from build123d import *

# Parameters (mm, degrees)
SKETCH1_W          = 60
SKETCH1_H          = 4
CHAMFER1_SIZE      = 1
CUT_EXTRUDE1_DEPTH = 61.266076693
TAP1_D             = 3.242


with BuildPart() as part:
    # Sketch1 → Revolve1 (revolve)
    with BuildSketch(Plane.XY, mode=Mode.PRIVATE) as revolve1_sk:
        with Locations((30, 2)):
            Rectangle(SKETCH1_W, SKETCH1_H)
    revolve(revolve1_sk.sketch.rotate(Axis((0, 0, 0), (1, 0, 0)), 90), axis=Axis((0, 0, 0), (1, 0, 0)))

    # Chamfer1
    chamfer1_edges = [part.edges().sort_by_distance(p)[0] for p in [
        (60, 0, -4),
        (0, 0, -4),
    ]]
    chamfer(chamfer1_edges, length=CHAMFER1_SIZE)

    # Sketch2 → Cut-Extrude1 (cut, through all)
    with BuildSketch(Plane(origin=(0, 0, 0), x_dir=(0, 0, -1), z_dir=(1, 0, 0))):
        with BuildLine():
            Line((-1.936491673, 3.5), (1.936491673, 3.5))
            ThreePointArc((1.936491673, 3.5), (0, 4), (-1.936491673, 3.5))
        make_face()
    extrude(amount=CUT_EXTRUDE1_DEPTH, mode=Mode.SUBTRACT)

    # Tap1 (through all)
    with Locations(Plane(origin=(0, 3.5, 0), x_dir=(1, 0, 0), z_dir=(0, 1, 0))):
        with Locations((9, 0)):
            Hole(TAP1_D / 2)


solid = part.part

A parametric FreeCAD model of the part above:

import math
import FreeCAD as App
import Part
import Sketcher
from FreeCAD import Vector
Q = App.Units.Quantity


def edges_at(feature, points):
    """Names of the edges that pass closest to the given points."""
    edges = feature.Shape.Edges
    near = lambda p: min(range(len(edges)), key=lambda i: edges[i].distToShape(Part.Vertex(*p))[0])
    return sorted({f"Edge{near(p) + 1}" for p in points})


def add_polygon(sketch, points):
    """Adds a closed chain of lines whose ends are joined by coincident constraints."""
    first, n = sketch.GeometryCount, len(points)
    for a, b in zip(points, points[1:] + points[:1]):
        sketch.addGeometry(Part.LineSegment(App.Vector(*a, 0), App.Vector(*b, 0)), False)
    for i in range(n):
        sketch.addConstraint(Sketcher.Constraint("Coincident", first + i, 2, first + (i + 1) % n, 1))

doc = App.newDocument("Part")
body = doc.addObject("PartDesign::Body", "Body")

sketch1 = body.newObject("Sketcher::SketchObject", "Sketch")
sketch1.AttachmentSupport = (doc.getObject("XY_Plane"), [""])
sketch1.MapMode = "FlatFace"
add_polygon(sketch1, [(0, 4), (0, 0), (60, 0), (60, 4)])
sketch1.addConstraint([
    Sketcher.Constraint("Vertical", 0),
    Sketcher.Constraint("Horizontal", 1),
    Sketcher.Constraint("Vertical", 2),
    Sketcher.Constraint("Horizontal", 3),
    Sketcher.Constraint("Coincident", 0, 2, -1, 1),
    Sketcher.Constraint("DistanceX", 1, 1, 1, 2, Q("60 mm")),
    Sketcher.Constraint("DistanceY", 0, 2, 0, 1, Q("4 mm")),
])
revolution = body.newObject("PartDesign::Revolution", "Revolution")
revolution.Profile = sketch1
revolution.ReferenceAxis = (sketch1, ["H_Axis"])
revolution.Angle = 360
doc.recompute()

chamfer = body.newObject("PartDesign::Chamfer", "Chamfer")
chamfer.Base = (revolution, edges_at(revolution, [(60, 0, -4), (0, 0, -4)]))
chamfer.Size = 1

sketch2 = body.newObject("Sketcher::SketchObject", "Sketch001")
sketch2.AttachmentSupport = (doc.getObject("YZ_Plane"), [""])
sketch2.MapMode = "FlatFace"
sketch2.addGeometry([
    Part.LineSegment(Vector(3.5, 1.9, 0), Vector(3.5, -1.9, 0)),
    Part.ArcOfCircle(Part.Circle(Vector(0, 0, 0), Vector(0, 0, 1), 4), math.radians(-29), math.radians(29)),
], False)
sketch2.addConstraint([
    Sketcher.Constraint("Coincident", 0, 1, 1, 2),
    Sketcher.Constraint("Coincident", 1, 1, 0, 2),
    Sketcher.Constraint("Vertical", 0),
    Sketcher.Constraint("Coincident", 1, 3, -1, 1),
    Sketcher.Constraint("Radius", 1, Q("4 mm")),
    Sketcher.Constraint("DistanceX", -1, 1, 0, 1, Q("3.5 mm")),
])
pocket1 = body.newObject("PartDesign::Pocket", "Pocket")
pocket1.Profile = sketch2
pocket1.Type = "ThroughAll"
pocket1.Reversed = True

sketch3 = body.newObject("Sketcher::SketchObject", "Sketch002")
sketch3.AttachmentSupport = (doc.getObject("XZ_Plane"), [""])
sketch3.MapMode = "FlatFace"
sketch3.AttachmentOffset = App.Placement(Vector(0, 0, -3.5), App.Rotation())
sketch3.addGeometry(Part.Circle(Vector(9, 0, 0), Vector(0, 0, 1), 1.6), False)
sketch3.addConstraint([
    Sketcher.Constraint("PointOnObject", 0, 3, -1),
    Sketcher.Constraint("Diameter", 0, Q("3.242 mm")),
    Sketcher.Constraint("DistanceX", -1, 1, 0, 3, Q("9 mm")),
])
doc.recompute()
hole = body.newObject("PartDesign::Hole", "Hole")
hole.Profile = sketch3
hole.ThreadType = "None"
hole.Diameter = 3.242
hole.DepthType = "ThroughAll"
hole.Reversed = True

doc.recompute()
